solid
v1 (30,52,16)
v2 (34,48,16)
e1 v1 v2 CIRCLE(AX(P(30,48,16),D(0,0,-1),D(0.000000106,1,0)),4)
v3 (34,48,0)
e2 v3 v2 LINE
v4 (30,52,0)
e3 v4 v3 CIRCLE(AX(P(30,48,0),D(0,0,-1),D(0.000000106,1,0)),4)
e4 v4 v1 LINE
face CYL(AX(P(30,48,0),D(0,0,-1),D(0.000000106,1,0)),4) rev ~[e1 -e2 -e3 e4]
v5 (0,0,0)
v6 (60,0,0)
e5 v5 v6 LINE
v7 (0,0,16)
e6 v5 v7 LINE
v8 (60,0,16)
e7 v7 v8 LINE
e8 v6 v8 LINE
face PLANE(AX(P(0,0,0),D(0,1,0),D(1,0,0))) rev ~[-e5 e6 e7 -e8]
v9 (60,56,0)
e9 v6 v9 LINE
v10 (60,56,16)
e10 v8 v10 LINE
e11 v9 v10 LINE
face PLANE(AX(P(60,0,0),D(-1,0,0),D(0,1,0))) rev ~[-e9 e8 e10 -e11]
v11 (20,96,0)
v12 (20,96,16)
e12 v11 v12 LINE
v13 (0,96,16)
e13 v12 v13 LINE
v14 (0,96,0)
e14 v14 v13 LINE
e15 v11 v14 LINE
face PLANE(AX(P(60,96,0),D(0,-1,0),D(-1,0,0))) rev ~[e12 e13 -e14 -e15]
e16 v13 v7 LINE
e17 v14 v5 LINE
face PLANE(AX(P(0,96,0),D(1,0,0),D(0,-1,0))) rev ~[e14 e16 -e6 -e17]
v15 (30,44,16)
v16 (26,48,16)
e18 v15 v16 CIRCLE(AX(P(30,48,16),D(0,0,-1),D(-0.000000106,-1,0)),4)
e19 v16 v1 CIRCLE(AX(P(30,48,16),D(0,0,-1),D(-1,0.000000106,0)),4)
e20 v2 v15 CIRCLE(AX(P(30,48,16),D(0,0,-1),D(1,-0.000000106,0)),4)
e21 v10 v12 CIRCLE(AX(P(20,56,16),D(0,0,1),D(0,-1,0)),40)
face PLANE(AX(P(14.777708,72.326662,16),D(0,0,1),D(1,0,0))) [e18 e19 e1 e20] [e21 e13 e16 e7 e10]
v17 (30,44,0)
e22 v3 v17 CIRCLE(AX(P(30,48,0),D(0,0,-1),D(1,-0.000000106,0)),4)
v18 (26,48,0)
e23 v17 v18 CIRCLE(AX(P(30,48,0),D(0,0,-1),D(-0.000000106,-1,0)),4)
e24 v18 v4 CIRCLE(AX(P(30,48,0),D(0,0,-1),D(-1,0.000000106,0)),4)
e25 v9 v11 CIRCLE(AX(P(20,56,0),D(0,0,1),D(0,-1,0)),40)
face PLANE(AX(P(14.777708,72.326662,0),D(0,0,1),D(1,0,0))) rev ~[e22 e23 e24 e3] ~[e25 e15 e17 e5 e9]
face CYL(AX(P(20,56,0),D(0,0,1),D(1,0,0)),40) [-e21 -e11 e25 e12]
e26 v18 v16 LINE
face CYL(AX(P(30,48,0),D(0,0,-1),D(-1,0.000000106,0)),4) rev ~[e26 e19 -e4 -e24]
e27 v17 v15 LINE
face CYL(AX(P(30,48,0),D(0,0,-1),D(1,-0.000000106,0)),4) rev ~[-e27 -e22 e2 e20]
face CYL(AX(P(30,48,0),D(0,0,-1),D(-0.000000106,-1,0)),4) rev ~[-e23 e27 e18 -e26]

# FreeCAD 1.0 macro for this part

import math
import FreeCAD as App
import Part
import Sketcher
Q = App.Units.Quantity


def edges_at(feature, points):
    """Names of the edges that pass closest to the given points."""
    edges = feature.Shape.Edges
    near = lambda p: min(range(len(edges)), key=lambda i: edges[i].distToShape(Part.Vertex(*p))[0])
    return sorted({f"Edge{near(p) + 1}" for p in points})

doc = App.newDocument("Part")
params = doc.addObject("Spreadsheet::Sheet", "Params")
for row, (alias, value) in enumerate([
    ("sketch1_radius", "4 mm"),
    ("sketch1_width", "60 mm"),
    ("sketch1_height", "96 mm"),
    ("pad1_length", "16 mm"),
    ("fillet_radius", "40 mm"),
], start=1):
    params.set(f"A{row}", alias)
    params.set(f"B{row}", "=" + value)
    params.setAlias(f"B{row}", alias)

body = doc.addObject("PartDesign::Body", "Body")

# Sketch on XY plane
sketch1 = body.newObject("Sketcher::SketchObject", "Sketch")
sketch1.AttachmentSupport = (doc.getObject("XY_Plane"), [""])
sketch1.MapMode = "FlatFace"
sketch1.addGeometry([
    Part.LineSegment(App.Vector(0, 96, 0), App.Vector(0, 0, 0)),  # 0
    Part.LineSegment(App.Vector(0, 0, 0), App.Vector(60, 0, 0)),  # 1
    Part.LineSegment(App.Vector(60, 0, 0), App.Vector(60, 96, 0)),  # 2
    Part.LineSegment(App.Vector(60, 96, 0), App.Vector(0, 96, 0)),  # 3
    Part.ArcOfCircle(Part.Circle(App.Vector(30, 48, 0), App.Vector(0, 0, 1), 4), math.radians(90), math.radians(180)),  # 4
    Part.ArcOfCircle(Part.Circle(App.Vector(30, 48, 0), App.Vector(0, 0, 1), 4), math.radians(0), math.radians(90)),  # 5
    Part.ArcOfCircle(Part.Circle(App.Vector(30, 48, 0), App.Vector(0, 0, 1), 4), math.radians(-90), math.radians(0)),  # 6
    Part.ArcOfCircle(Part.Circle(App.Vector(30, 48, 0), App.Vector(0, 0, 1), 4), math.radians(-180), math.radians(-90)),  # 7
], False)
sketch1.addConstraint([
    Sketcher.Constraint("Coincident", 0, 2, 1, 1),
    Sketcher.Constraint("Coincident", 1, 2, 2, 1),
    Sketcher.Constraint("Coincident", 2, 2, 3, 1),
    Sketcher.Constraint("Coincident", 3, 2, 0, 1),
    Sketcher.Constraint("Tangent", 4, 1, 5, 2),
    Sketcher.Constraint("Tangent", 5, 1, 6, 2),
    Sketcher.Constraint("Tangent", 6, 1, 7, 2),
    Sketcher.Constraint("Tangent", 7, 1, 4, 2),
    Sketcher.Constraint("Vertical", 0),
    Sketcher.Constraint("Horizontal", 1),
    Sketcher.Constraint("Vertical", 2),
    Sketcher.Constraint("Horizontal", 3),
    Sketcher.Constraint("Coincident", 0, 2, -1, 1),
    Sketcher.Constraint("Equal", 4, 5),
    Sketcher.Constraint("Horizontal", 7, 3, 5, 1),
    Sketcher.Constraint("Horizontal", 5, 1, 7, 1),
    Sketcher.Constraint("Vertical", 7, 3, 4, 1),
    Sketcher.Constraint("Vertical", 4, 1, 6, 1),
    Sketcher.Constraint("Radius", 4, Q("4 mm")),
    Sketcher.Constraint("DistanceX", 1, 1, 1, 2, Q("60 mm")),
    Sketcher.Constraint("DistanceY", 0, 2, 0, 1, Q("96 mm")),
    Sketcher.Constraint("DistanceX", -1, 1, 4, 3, Q("30 mm")),
    Sketcher.Constraint("DistanceY", -1, 1, 4, 3, Q("48 mm")),
])
sketch1.setExpression("Constraints[18]", "Params.sketch1_radius")
sketch1.setExpression("Constraints[19]", "Params.sketch1_width")
sketch1.setExpression("Constraints[20]", "Params.sketch1_height")
pad1 = body.newObject("PartDesign::Pad", "Pad")
pad1.Profile = sketch1
pad1.setExpression("Length", "Params.pad1_length")
doc.recompute()

fillet = body.newObject("PartDesign::Fillet", "Fillet")
fillet.Base = (pad1, edges_at(pad1, [(60, 96, 8)]))
fillet.setExpression("Radius", "Params.fillet_radius")

doc.recompute()
